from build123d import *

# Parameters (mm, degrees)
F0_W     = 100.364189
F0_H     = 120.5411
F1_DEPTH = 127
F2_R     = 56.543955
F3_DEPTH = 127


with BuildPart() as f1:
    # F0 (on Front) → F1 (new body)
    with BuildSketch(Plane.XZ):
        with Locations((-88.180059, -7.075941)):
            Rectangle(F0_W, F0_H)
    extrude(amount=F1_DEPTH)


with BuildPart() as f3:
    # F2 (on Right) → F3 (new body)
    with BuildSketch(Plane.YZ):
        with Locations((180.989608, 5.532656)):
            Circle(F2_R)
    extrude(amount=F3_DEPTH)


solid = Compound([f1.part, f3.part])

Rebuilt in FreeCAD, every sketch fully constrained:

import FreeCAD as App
import Part
import Sketcher

V = App.Vector
Q = App.Units.Quantity


def add_polygon(sketch, points):
    """Adds a closed chain of lines whose ends are joined by coincident constraints."""
    first, n = sketch.GeometryCount, len(points)
    for a, b in zip(points, points[1:] + points[:1]):
        sketch.addGeometry(Part.LineSegment(App.Vector(*a, 0), App.Vector(*b, 0)), False)
    for i in range(n):
        sketch.addConstraint(Sketcher.Constraint("Coincident", first + i, 2, first + (i + 1) % n, 1))

doc = App.newDocument("Part")
body = doc.addObject("PartDesign::Body", "Body")

# Sketch on XZ plane
sketch1 = body.newObject("Sketcher::SketchObject", "Sketch")
sketch1.AttachmentSupport = (doc.getObject("XZ_Plane"), [""])
sketch1.MapMode = "FlatFace"
add_polygon(sketch1, [(-138, 53), (-138, -67), (-38, -67), (-38, 53)])  # lines 0-3
sketch1.addConstraint([
    Sketcher.Constraint("Vertical", 0),
    Sketcher.Constraint("Horizontal", 1),
    Sketcher.Constraint("Vertical", 2),
    Sketcher.Constraint("Horizontal", 3),
    Sketcher.Constraint("DistanceY", 0, 2, 0, 1, 120.5411),
    Sketcher.Constraint("DistanceX", 1, 1, 1, 2, 100.364189),
    Sketcher.Constraint("DistanceY", 0, 2, -1, 1, 67.346491),
    Sketcher.Constraint("DistanceX", 0, 2, -1, 1, 138.362154),
])
pad1 = body.newObject("PartDesign::Pad", "Pad")
pad1.Profile = sketch1
pad1.Length = Q("5 in")
body2 = doc.addObject("PartDesign::Body", "Body001")

# Sketch on YZ plane
sketch2 = body2.newObject("Sketcher::SketchObject", "Sketch001")
sketch2.AttachmentSupport = (doc.getObject("YZ_Plane001"), [""])
sketch2.MapMode = "FlatFace"
sketch2.addGeometry(Part.Circle(V(181, 6, 0), V(0, 0, 1), 57), False)
sketch2.addConstraint([
    Sketcher.Constraint("Diameter", 0, 113.08791),
    Sketcher.Constraint("DistanceX", -1, 1, 0, 3, 180.989608),
    Sketcher.Constraint("DistanceY", -1, 1, 0, 3, 5.532656),
])
pad2 = body2.newObject("PartDesign::Pad", "Pad001")
pad2.Profile = sketch2
pad2.Length = Q("5 in")

doc.recompute()
